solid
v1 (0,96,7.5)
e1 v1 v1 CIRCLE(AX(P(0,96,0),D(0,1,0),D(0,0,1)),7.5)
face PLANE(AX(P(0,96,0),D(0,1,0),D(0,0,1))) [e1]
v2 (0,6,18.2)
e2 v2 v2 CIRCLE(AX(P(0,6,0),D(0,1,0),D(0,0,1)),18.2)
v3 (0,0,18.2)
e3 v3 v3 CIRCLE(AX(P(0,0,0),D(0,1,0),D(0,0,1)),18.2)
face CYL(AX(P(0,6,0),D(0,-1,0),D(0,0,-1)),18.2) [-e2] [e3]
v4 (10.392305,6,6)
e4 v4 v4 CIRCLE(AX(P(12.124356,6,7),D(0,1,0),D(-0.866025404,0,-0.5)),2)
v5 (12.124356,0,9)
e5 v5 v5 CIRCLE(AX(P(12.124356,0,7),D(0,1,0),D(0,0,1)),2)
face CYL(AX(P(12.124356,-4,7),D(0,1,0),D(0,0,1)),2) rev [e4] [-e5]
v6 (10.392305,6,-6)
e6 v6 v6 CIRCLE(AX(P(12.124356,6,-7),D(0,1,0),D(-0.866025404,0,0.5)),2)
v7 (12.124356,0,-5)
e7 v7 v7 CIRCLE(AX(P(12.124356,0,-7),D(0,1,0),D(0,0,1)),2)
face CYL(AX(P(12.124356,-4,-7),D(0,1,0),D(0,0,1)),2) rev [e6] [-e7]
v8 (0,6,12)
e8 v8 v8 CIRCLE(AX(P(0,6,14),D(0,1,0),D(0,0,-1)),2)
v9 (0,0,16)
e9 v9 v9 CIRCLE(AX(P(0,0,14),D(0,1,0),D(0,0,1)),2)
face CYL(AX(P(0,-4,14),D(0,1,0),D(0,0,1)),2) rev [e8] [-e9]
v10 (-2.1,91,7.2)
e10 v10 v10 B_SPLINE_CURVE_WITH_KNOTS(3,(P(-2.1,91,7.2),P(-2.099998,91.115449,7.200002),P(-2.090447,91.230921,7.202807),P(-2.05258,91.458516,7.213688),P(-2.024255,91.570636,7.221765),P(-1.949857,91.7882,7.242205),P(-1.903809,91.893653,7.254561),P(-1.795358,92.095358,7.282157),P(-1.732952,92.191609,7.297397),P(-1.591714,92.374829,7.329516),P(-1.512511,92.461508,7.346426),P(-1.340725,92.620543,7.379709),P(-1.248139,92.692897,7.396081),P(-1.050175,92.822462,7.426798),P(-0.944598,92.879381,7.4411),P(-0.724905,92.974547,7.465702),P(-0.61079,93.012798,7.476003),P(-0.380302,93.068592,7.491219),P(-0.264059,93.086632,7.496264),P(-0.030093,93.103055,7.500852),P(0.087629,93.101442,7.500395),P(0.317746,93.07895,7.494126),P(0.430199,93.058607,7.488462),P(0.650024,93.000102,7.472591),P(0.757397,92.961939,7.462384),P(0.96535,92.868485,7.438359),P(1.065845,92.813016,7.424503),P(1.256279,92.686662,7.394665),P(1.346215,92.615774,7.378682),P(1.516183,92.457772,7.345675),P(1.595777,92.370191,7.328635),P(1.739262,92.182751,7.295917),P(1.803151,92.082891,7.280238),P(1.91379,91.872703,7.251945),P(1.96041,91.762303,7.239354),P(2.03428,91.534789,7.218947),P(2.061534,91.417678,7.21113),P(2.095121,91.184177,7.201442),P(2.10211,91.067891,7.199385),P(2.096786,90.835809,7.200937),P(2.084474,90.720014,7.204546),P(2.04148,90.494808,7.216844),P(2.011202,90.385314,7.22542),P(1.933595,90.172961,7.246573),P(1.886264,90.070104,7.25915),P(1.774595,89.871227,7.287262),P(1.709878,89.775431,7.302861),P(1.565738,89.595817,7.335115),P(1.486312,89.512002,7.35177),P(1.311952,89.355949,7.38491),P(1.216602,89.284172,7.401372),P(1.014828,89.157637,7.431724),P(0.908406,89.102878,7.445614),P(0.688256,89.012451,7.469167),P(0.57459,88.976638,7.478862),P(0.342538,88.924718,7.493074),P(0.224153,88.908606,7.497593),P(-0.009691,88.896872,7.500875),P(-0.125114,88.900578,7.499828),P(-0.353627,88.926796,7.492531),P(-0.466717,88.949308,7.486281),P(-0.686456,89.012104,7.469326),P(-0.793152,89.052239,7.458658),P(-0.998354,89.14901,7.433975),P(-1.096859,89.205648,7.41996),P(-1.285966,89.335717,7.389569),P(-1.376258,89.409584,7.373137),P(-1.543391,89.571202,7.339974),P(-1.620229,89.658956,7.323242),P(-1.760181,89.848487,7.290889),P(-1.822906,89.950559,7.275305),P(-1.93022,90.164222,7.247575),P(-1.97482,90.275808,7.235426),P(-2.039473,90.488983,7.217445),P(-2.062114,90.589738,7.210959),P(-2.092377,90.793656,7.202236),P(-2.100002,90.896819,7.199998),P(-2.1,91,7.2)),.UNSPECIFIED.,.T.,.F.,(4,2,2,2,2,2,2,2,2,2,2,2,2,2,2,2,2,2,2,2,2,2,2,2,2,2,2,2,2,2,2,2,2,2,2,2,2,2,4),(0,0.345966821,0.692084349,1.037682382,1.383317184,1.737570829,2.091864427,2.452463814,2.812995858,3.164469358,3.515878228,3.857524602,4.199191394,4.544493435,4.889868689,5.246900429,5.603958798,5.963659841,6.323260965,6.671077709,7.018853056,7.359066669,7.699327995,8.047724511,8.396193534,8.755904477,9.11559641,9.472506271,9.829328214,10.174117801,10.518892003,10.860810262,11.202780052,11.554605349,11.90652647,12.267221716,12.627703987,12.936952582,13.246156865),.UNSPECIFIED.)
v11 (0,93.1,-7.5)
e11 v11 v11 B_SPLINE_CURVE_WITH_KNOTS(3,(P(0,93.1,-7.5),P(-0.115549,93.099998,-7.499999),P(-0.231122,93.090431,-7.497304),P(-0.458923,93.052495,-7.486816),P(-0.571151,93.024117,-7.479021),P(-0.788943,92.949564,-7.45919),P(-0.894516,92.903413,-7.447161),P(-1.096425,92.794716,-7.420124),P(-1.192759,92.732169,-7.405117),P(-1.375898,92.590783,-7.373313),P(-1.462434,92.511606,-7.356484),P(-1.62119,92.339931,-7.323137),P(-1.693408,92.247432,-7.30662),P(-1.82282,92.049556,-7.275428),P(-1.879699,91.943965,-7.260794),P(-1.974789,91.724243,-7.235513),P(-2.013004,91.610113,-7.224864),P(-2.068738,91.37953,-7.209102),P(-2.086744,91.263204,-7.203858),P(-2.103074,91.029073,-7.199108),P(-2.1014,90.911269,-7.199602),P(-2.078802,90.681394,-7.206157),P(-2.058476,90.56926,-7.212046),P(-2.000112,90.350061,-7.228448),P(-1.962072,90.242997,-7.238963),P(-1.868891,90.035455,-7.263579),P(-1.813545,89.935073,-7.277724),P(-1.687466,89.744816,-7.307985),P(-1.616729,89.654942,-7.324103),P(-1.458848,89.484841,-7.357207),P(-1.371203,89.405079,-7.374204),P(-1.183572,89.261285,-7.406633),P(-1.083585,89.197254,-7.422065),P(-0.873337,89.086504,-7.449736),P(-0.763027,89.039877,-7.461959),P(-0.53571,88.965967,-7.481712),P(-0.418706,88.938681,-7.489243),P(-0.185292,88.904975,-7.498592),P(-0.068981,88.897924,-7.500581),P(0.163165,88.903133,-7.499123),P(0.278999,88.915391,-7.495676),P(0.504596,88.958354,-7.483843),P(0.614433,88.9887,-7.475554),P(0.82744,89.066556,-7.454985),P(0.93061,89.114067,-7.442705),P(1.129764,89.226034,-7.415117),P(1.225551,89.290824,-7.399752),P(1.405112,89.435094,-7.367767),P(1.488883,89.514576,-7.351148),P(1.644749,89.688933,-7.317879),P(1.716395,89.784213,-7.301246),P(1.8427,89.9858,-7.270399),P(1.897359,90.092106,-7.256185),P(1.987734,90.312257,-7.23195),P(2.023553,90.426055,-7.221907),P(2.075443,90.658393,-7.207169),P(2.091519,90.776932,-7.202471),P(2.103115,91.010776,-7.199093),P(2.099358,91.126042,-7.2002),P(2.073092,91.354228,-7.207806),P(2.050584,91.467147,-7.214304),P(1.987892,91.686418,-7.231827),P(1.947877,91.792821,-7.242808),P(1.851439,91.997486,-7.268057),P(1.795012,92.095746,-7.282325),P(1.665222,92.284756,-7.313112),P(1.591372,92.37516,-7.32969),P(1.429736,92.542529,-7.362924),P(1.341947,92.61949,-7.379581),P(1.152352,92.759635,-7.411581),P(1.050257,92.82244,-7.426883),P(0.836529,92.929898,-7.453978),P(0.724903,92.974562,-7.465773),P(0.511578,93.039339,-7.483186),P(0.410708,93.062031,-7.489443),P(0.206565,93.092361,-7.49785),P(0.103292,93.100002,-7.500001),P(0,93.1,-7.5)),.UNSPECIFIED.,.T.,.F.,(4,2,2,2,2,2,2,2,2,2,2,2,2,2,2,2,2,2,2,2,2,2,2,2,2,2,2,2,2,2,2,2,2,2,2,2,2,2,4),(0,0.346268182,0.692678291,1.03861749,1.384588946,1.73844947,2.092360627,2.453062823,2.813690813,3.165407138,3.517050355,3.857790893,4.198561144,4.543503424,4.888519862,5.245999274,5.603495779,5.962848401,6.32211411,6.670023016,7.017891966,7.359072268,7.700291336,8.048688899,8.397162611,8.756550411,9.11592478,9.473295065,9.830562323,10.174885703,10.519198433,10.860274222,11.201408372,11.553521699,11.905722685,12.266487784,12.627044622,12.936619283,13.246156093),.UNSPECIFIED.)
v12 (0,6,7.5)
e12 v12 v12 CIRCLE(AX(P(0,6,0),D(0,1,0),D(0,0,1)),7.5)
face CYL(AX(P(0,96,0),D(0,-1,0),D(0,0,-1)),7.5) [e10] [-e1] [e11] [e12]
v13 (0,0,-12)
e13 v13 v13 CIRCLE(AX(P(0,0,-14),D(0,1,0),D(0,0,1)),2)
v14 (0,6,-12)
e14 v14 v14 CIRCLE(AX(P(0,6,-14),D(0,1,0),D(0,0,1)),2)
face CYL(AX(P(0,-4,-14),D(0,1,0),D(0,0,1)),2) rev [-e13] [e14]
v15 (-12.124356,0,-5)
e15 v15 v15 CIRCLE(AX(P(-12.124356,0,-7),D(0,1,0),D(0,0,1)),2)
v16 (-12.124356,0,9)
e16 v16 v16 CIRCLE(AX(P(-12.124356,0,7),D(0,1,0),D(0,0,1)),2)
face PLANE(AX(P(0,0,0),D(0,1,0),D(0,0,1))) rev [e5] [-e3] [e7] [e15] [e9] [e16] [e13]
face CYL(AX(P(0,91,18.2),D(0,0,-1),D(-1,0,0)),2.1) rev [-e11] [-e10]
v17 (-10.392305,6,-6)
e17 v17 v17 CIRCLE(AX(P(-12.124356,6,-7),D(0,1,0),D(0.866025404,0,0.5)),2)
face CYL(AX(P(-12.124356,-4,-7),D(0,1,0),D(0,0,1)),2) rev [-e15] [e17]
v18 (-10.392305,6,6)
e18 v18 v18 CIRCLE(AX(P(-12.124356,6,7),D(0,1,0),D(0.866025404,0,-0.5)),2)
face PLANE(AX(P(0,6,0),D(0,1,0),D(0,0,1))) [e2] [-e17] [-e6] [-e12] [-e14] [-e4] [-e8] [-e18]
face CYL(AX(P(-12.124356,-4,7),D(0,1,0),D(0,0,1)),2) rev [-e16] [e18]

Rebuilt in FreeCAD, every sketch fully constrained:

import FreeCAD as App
import Part
import Sketcher
from FreeCAD import Vector
Q = App.Units.Quantity

doc = App.newDocument("Part")
params = doc.addObject("Spreadsheet::Sheet", "Params")
for row, (alias, value) in enumerate([
    ("sketch1_diameter", "36.4 mm"),
    ("pad1_length", "6 mm"),
    ("sketch2_diameter", "4 mm"),
    ("pocket1_length", "10 mm"),
    ("sketch3_diameter", "15 mm"),
    ("pad2_length", "90 mm"),
    ("sketch4_diameter", "4.2 mm"),
], start=1):
    params.set(f"A{row}", alias)
    params.set(f"B{row}", "=" + value)
    params.setAlias(f"B{row}", alias)

body = doc.addObject("PartDesign::Body", "Body")

sketch1 = body.newObject("Sketcher::SketchObject", "Sketch")
sketch1.AttachmentSupport = (doc.getObject("XZ_Plane"), [""])
sketch1.MapMode = "FlatFace"
sketch1.addGeometry(Part.Circle(Vector(0, 0, 0), Vector(0, 0, 1), 18.2), False)
sketch1.addConstraint([
    Sketcher.Constraint("Coincident", 0, 3, -1, 1),
    Sketcher.Constraint("Diameter", 0, Q("36.4 mm")),
])
sketch1.setExpression("Constraints[1]", "Params.sketch1_diameter")
pad1 = body.newObject("PartDesign::Pad", "Pad")
pad1.Profile = sketch1
pad1.setExpression("Length", "Params.pad1_length")
pad1.Reversed = True

sketch2 = body.newObject("Sketcher::SketchObject", "Sketch001")
sketch2.AttachmentSupport = (doc.getObject("XZ_Plane"), [""])
sketch2.MapMode = "FlatFace"
sketch2.AttachmentOffset = App.Placement(Vector(0, 0, -6), App.Rotation())
sketch2.addGeometry(Part.Circle(Vector(0, -14, 0), Vector(0, 0, 1), 2), False)
sketch2.addConstraint([
    Sketcher.Constraint("PointOnObject", 0, 3, -2),
    Sketcher.Constraint("Diameter", 0, Q("4 mm")),
    Sketcher.Constraint("DistanceY", 0, 3, -1, 1, Q("14 mm")),
])
sketch2.setExpression("Constraints[1]", "Params.sketch2_diameter")
pocket1 = body.newObject("PartDesign::Pocket", "Pocket")
pocket1.Profile = sketch2
pocket1.setExpression("Length", "Params.pocket1_length")
pocket1.Reversed = True
doc.recompute()

polarpattern = body.newObject("PartDesign::PolarPattern", "PolarPattern")
polarpattern.Originals = [pocket1]
polarpattern.Axis = (doc.getObject("Y_Axis"), [""])
polarpattern.Angle = 360
polarpattern.Occurrences = 6
body.Tip = polarpattern

sketch3 = body.newObject("Sketcher::SketchObject", "Sketch002")
sketch3.AttachmentSupport = (doc.getObject("XZ_Plane"), [""])
sketch3.MapMode = "FlatFace"
sketch3.AttachmentOffset = App.Placement(Vector(0, 0, -6), App.Rotation())
sketch3.addGeometry(Part.Circle(Vector(0, 0, 0), Vector(0, 0, 1), 7.5), False)
sketch3.addConstraint([
    Sketcher.Constraint("Coincident", 0, 3, -1, 1),
    Sketcher.Constraint("Diameter", 0, Q("15 mm")),
])
sketch3.setExpression("Constraints[1]", "Params.sketch3_diameter")
pad2 = body.newObject("PartDesign::Pad", "Pad001")
pad2.Profile = sketch3
pad2.setExpression("Length", "Params.pad2_length")
pad2.Reversed = True

sketch4 = body.newObject("Sketcher::SketchObject", "Sketch003")
sketch4.AttachmentSupport = (doc.getObject("XY_Plane"), [""])
sketch4.MapMode = "FlatFace"
sketch4.AttachmentOffset = App.Placement(Vector(0, 0, -7.5), App.Rotation())
sketch4.addGeometry(Part.Circle(Vector(0, 91, 0), Vector(0, 0, 1), 2.1), False)
sketch4.addConstraint([
    Sketcher.Constraint("PointOnObject", 0, 3, -2),
    Sketcher.Constraint("Diameter", 0, Q("4.2 mm")),
    Sketcher.Constraint("DistanceY", -1, 1, 0, 3, Q("91 mm")),
])
sketch4.setExpression("Constraints[1]", "Params.sketch4_diameter")
pocket2 = body.newObject("PartDesign::Pocket", "Pocket001")
pocket2.Profile = sketch4
pocket2.Type = "ThroughAll"
pocket2.Reversed = True

doc.recompute()
